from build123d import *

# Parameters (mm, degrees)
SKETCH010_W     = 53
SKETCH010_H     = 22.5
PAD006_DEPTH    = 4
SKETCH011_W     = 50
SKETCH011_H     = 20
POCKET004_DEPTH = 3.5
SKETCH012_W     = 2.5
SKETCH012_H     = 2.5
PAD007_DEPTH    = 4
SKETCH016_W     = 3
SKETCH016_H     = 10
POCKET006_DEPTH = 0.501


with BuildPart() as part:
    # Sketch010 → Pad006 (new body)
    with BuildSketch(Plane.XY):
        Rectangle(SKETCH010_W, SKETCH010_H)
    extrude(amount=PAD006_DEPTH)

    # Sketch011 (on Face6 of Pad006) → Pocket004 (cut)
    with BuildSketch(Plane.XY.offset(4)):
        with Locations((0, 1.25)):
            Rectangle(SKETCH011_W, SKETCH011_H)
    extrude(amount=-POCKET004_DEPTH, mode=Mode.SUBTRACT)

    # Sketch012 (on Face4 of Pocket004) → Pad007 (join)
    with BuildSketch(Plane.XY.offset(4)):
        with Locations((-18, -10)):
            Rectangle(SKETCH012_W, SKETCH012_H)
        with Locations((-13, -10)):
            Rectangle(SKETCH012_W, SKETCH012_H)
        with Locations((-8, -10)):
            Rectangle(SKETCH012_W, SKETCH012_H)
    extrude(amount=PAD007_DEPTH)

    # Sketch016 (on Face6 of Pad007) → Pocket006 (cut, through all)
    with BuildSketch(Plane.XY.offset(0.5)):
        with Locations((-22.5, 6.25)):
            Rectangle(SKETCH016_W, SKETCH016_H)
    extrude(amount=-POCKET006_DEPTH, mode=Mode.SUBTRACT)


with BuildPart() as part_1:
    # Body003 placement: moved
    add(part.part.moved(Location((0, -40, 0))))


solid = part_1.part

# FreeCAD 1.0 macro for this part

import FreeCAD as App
import Part
import Sketcher

V = App.Vector
Q = App.Units.Quantity


def add_polygon(sketch, points):
    """Adds a closed chain of lines whose ends are joined by coincident constraints."""
    first, n = sketch.GeometryCount, len(points)
    for a, b in zip(points, points[1:] + points[:1]):
        sketch.addGeometry(Part.LineSegment(App.Vector(*a, 0), App.Vector(*b, 0)), False)
    for i in range(n):
        sketch.addConstraint(Sketcher.Constraint("Coincident", first + i, 2, first + (i + 1) % n, 1))

doc = App.newDocument("Part")
params = doc.addObject("Spreadsheet::Sheet", "Params")
for row, (alias, value) in enumerate([
    ("sketch1_width", "53 mm"),
    ("sketch1_height", "22.5 mm"),
    ("pad1_length", "4 mm"),
    ("sketch2_width", "50 mm"),
    ("sketch2_height", "20 mm"),
    ("pocket1_length", "3.5 mm"),
    ("sketch3_width", "2.5 mm"),
    ("pad2_length", "4 mm"),
    ("sketch4_width", "3 mm"),
    ("sketch4_height", "10 mm"),
], start=1):
    params.set(f"A{row}", alias)
    params.set(f"B{row}", "=" + value)
    params.setAlias(f"B{row}", alias)

body = doc.addObject("PartDesign::Body", "Body")

# Sketch on XY plane
sketch1 = body.newObject("Sketcher::SketchObject", "Sketch")
sketch1.AttachmentSupport = (doc.getObject("XY_Plane"), [""])
sketch1.MapMode = "FlatFace"
add_polygon(sketch1, [(-26, 11), (-26, -11), (26, -11), (26, 11)])  # lines 0-3
sketch1.addConstraint([
    Sketcher.Constraint("Vertical", 0),
    Sketcher.Constraint("Horizontal", 1),
    Sketcher.Constraint("Vertical", 2),
    Sketcher.Constraint("Horizontal", 3),
    Sketcher.Constraint("Symmetric", 0, 2, 2, 2, -1, 1),
    Sketcher.Constraint("DistanceX", 1, 1, 1, 2, Q("53 mm")),
    Sketcher.Constraint("DistanceY", 0, 2, 0, 1, Q("22.5 mm")),
])
sketch1.setExpression("Constraints[9]", "Params.sketch1_width")
sketch1.setExpression("Constraints[10]", "Params.sketch1_height")
pad1 = body.newObject("PartDesign::Pad", "Pad")
pad1.Profile = sketch1
pad1.setExpression("Length", "Params.pad1_length")

# Sketch on XY plane
sketch2 = body.newObject("Sketcher::SketchObject", "Sketch001")
sketch2.AttachmentSupport = (doc.getObject("XY_Plane"), [""])
sketch2.MapMode = "FlatFace"
sketch2.AttachmentOffset = App.Placement(V(0, 0, 4), App.Rotation())
add_polygon(sketch2, [(-25, 11), (-25, -9), (25, -9), (25, 11)])  # lines 0-3
sketch2.addConstraint([
    Sketcher.Constraint("Vertical", 0),
    Sketcher.Constraint("Horizontal", 1),
    Sketcher.Constraint("Vertical", 2),
    Sketcher.Constraint("Horizontal", 3),
    Sketcher.Constraint("DistanceX", 1, 1, 1, 2, Q("50 mm")),
    Sketcher.Constraint("DistanceY", 0, 2, 0, 1, Q("20 mm")),
    Sketcher.Constraint("DistanceX", 0, 2, -1, 1, Q("25 mm")),
    Sketcher.Constraint("DistanceY", 0, 2, -1, 1, Q("8.75 mm")),
])
sketch2.setExpression("Constraints[8]", "Params.sketch2_width")
sketch2.setExpression("Constraints[9]", "Params.sketch2_height")
pocket1 = body.newObject("PartDesign::Pocket", "Pocket")
pocket1.Profile = sketch2
pocket1.setExpression("Length", "Params.pocket1_length")

# Sketch on XY plane
sketch3 = body.newObject("Sketcher::SketchObject", "Sketch002")
sketch3.AttachmentSupport = (doc.getObject("XY_Plane"), [""])
sketch3.MapMode = "FlatFace"
sketch3.AttachmentOffset = App.Placement(V(0, 0, 4), App.Rotation())
add_polygon(sketch3, [(-19.2, -8.8), (-19.2, -11.2), (-16.8, -11.2), (-16.8, -8.8)])  # lines 0-3
add_polygon(sketch3, [(-14.2, -8.8), (-14.2, -11.2), (-11.8, -11.2), (-11.8, -8.8)])  # lines 4-7
add_polygon(sketch3, [(-9.2, -8.8), (-9.2, -11.2), (-6.8, -11.2), (-6.8, -8.8)])  # lines 8-11
sketch3.addConstraint([
    Sketcher.Constraint("Vertical", 0),
    Sketcher.Constraint("Horizontal", 1),
    Sketcher.Constraint("Vertical", 2),
    Sketcher.Constraint("Horizontal", 3),
    Sketcher.Constraint("Vertical", 4),
    Sketcher.Constraint("Horizontal", 5),
    Sketcher.Constraint("Vertical", 6),
    Sketcher.Constraint("Horizontal", 7),
    Sketcher.Constraint("Vertical", 8),
    Sketcher.Constraint("Horizontal", 9),
    Sketcher.Constraint("Vertical", 10),
    Sketcher.Constraint("Horizontal", 11),
    Sketcher.Constraint("Horizontal", 1, 2, 4, 2),
    Sketcher.Constraint("Horizontal", 3, 2, 6, 2),
    Sketcher.Constraint("Horizontal", 5, 2, 8, 2),
    Sketcher.Constraint("Horizontal", 7, 2, 10, 2),
    Sketcher.Constraint("Equal", 3, 5),
    Sketcher.Constraint("Equal", 7, 9),
    Sketcher.Constraint("Equal", 11, 0),
    Sketcher.Constraint("DistanceX", 1, 1, 1, 2, Q("2.5 mm")),
    Sketcher.Constraint("DistanceX", 0, 2, 4, 2, Q("5 mm")),
    Sketcher.Constraint("DistanceX", 4, 2, 8, 2, Q("5 mm")),
    Sketcher.Constraint("DistanceX", 0, 2, -1, 1, Q("19.25 mm")),
    Sketcher.Constraint("DistanceY", 0, 2, -1, 1, Q("11.25 mm")),
])
sketch3.setExpression("Constraints[31]", "Params.sketch3_width")
pad2 = body.newObject("PartDesign::Pad", "Pad001")
pad2.Profile = sketch3
pad2.setExpression("Length", "Params.pad2_length")

# Sketch on XY plane
sketch4 = body.newObject("Sketcher::SketchObject", "Sketch003")
sketch4.AttachmentSupport = (doc.getObject("XY_Plane"), [""])
sketch4.MapMode = "FlatFace"
sketch4.AttachmentOffset = App.Placement(V(0, 0, 0.5), App.Rotation())
add_polygon(sketch4, [(-24, 11.2), (-24, 1.2), (-21, 1.2), (-21, 11.2)])  # lines 0-3
sketch4.addConstraint([
    Sketcher.Constraint("Vertical", 0),
    Sketcher.Constraint("Horizontal", 1),
    Sketcher.Constraint("Vertical", 2),
    Sketcher.Constraint("Horizontal", 3),
    Sketcher.Constraint("DistanceX", 1, 1, 1, 2, Q("3 mm")),
    Sketcher.Constraint("DistanceY", 0, 2, 0, 1, Q("10 mm")),
    Sketcher.Constraint("DistanceX", 0, 2, -1, 1, Q("24 mm")),
    Sketcher.Constraint("DistanceY", -1, 1, 0, 2, Q("1.25 mm")),
])
sketch4.setExpression("Constraints[8]", "Params.sketch4_width")
sketch4.setExpression("Constraints[9]", "Params.sketch4_height")
pocket2 = body.newObject("PartDesign::Pocket", "Pocket001")
pocket2.Profile = sketch4
pocket2.Type = "ThroughAll"
body2 = doc.addObject("PartDesign::Body", "Body001")
doc.recompute()

body.Placement = App.Placement(V(0, -40, 0), App.Rotation(V(0, 0, 1), 0))
boolean = body2.newObject("PartDesign::Boolean", "Boolean")
boolean.Type = "Fuse"
boolean.addObjects([body])

doc.recompute()
